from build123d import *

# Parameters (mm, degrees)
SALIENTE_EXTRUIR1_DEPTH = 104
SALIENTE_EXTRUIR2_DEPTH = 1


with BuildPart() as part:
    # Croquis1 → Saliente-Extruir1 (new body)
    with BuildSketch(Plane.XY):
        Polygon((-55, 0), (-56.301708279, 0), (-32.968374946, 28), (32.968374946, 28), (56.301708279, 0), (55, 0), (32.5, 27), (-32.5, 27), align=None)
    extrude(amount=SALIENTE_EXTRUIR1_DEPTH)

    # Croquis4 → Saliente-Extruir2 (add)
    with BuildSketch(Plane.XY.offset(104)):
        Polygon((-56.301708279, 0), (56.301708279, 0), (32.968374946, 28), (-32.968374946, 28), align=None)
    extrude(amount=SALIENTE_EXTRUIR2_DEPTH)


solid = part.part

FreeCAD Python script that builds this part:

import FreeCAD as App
import Part
import Sketcher

V = App.Vector
Q = App.Units.Quantity


def add_polygon(sketch, points):
    """Adds a closed chain of lines whose ends are joined by coincident constraints."""
    first, n = sketch.GeometryCount, len(points)
    for a, b in zip(points, points[1:] + points[:1]):
        sketch.addGeometry(Part.LineSegment(App.Vector(*a, 0), App.Vector(*b, 0)), False)
    for i in range(n):
        sketch.addConstraint(Sketcher.Constraint("Coincident", first + i, 2, first + (i + 1) % n, 1))

doc = App.newDocument("Part")
params = doc.addObject("Spreadsheet::Sheet", "Params")
for row, (alias, value) in enumerate([
    ("sketch1_width", "65 mm"),
    ("pad1_length", "104 mm"),
    ("pad2_length", "1 mm"),
], start=1):
    params.set(f"A{row}", alias)
    params.set(f"B{row}", "=" + value)
    params.setAlias(f"B{row}", alias)

body = doc.addObject("PartDesign::Body", "Body")

sketch1 = body.newObject("Sketcher::SketchObject", "Sketch")
sketch1.AttachmentSupport = (doc.getObject("XY_Plane"), [""])
sketch1.MapMode = "FlatFace"
add_polygon(sketch1, [(-56.3, 0), (-55, 0), (-32.5, 27), (32.5, 27), (55, 0), (56.3, 0), (33, 28), (-33, 28)])
sketch1.addConstraint(Sketcher.Constraint("Horizontal", 0))
sketch1.addConstraint(Sketcher.Constraint("Horizontal", 2))
sketch1.addConstraint(Sketcher.Constraint("Horizontal", 4))
sketch1.addConstraint(Sketcher.Constraint("Horizontal", 6))
sketch1.addConstraint(Sketcher.Constraint("Symmetric", 0, 2, 3, 2, -1, 1))
sketch1.addConstraint(Sketcher.Constraint("Symmetric", 4, 2, 7, 2, -2))
sketch1.addConstraint(Sketcher.Constraint("Parallel", 3, 5))
sketch1.addConstraint(Sketcher.Constraint("Parallel", 1, 7))
sketch1.addConstraint(Sketcher.Constraint("Equal", 1, 3))
sketch1.addConstraint(Sketcher.Constraint("DistanceX", 2, 1, 2, 2, Q("65 mm")))
sketch1.addConstraint(Sketcher.Constraint("DistanceX", 0, 2, -1, 1, Q("55 mm")))
sketch1.addConstraint(Sketcher.Constraint("DistanceY", -1, 1, 1, 2, Q("27 mm")))
sketch1.addConstraint(Sketcher.Constraint("DistanceY", -1, 1, 5, 2, Q("28 mm")))
sketch1.addConstraint(Sketcher.Constraint("DistanceX", 0, 1, 0, 2, Q("1.301708 mm")))
sketch1.setExpression("Constraints[17]", "Params.sketch1_width")
pad1 = body.newObject("PartDesign::Pad", "Pad")
pad1.Profile = sketch1
pad1.setExpression("Length", "Params.pad1_length")

sketch2 = body.newObject("Sketcher::SketchObject", "Sketch001")
sketch2.AttachmentSupport = (doc.getObject("XY_Plane"), [""])
sketch2.MapMode = "FlatFace"
sketch2.AttachmentOffset = App.Placement(V(0, 0, 104), App.Rotation())
add_polygon(sketch2, [(-56, 0), (56, 0), (33, 28), (-33, 28)])
sketch2.addConstraint(Sketcher.Constraint("Horizontal", 0))
sketch2.addConstraint(Sketcher.Constraint("Horizontal", 2))
sketch2.addConstraint(Sketcher.Constraint("Symmetric", 0, 2, 3, 2, -1, 1))
sketch2.addConstraint(Sketcher.Constraint("Equal", 1, 3))
sketch2.addConstraint(Sketcher.Constraint("DistanceY", -1, 1, 1, 2, Q("28 mm")))
sketch2.addConstraint(Sketcher.Constraint("DistanceX", 2, 2, 2, 1, Q("65.93675 mm")))
sketch2.addConstraint(Sketcher.Constraint("Distance", 1, Q("36.447832 mm")))
pad2 = body.newObject("PartDesign::Pad", "Pad001")
pad2.Profile = sketch2
pad2.setExpression("Length", "Params.pad2_length")

doc.recompute()
